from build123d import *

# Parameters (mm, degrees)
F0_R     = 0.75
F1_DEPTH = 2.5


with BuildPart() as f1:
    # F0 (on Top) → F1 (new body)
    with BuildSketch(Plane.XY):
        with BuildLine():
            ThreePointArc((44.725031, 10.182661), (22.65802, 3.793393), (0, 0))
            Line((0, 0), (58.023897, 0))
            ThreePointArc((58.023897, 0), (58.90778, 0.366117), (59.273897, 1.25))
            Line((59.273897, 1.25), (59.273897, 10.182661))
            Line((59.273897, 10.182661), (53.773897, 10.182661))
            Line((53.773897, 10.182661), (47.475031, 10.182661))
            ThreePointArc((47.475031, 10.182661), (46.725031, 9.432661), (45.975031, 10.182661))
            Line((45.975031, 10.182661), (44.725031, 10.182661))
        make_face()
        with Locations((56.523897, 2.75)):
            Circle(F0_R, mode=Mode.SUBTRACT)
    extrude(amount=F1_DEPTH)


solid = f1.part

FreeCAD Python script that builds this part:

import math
import FreeCAD as App
import Part
import Sketcher

V = App.Vector
Q = App.Units.Quantity

doc = App.newDocument("Part")
body = doc.addObject("PartDesign::Body", "Body")

sketch1 = body.newObject("Sketcher::SketchObject", "Sketch")
sketch1.AttachmentSupport = (doc.getObject("XY_Plane"), [""])
sketch1.MapMode = "FlatFace"
sketch1.addGeometry([
    Part.ArcOfCircle(Part.Circle(V(-21.3, 197.1, 0), V(0, 0, 1), 198.2), math.radians(-83.82), math.radians(-70.53)),
    Part.LineSegment(V(0, 0, 0), V(58, 0, 0)),
    Part.ArcOfCircle(Part.Circle(V(58, 1.3, 0), V(0, 0, 1), 1.3), math.radians(-90), math.radians(0)),
    Part.LineSegment(V(59.3, 1.2, 0), V(59.3, 10.2, 0)),
    Part.LineSegment(V(59.3, 10.2, 0), V(47.5, 10.2, 0)),
    Part.ArcOfCircle(Part.Circle(V(46.7, 10.2, 0), V(0, 0, 1), 0.8), math.radians(180), math.radians(360)),
    Part.LineSegment(V(46, 10.2, 0), V(44.7, 10.2, 0)),
    Part.Circle(V(56.5, 2.8, 0), V(0, 0, 1), 0.8),
], False)
sketch1.addConstraint([
    Sketcher.Constraint("Coincident", 0, 1, 1, 1),
    Sketcher.Constraint("Tangent", 1, 2, 2, 1),
    Sketcher.Constraint("Tangent", 2, 2, 3, 1),
    Sketcher.Constraint("Coincident", 3, 2, 4, 1),
    Sketcher.Constraint("Coincident", 4, 2, 5, 2),
    Sketcher.Constraint("Coincident", 5, 1, 6, 1),
    Sketcher.Constraint("Coincident", 6, 2, 0, 2),
    Sketcher.Constraint("Horizontal", 1),
    Sketcher.Constraint("Vertical", 3),
    Sketcher.Constraint("Horizontal", 4),
    Sketcher.Constraint("Horizontal", 6),
    Sketcher.Constraint("Coincident", 0, 1, -1, 1),
    Sketcher.Constraint("Equal", 5, 7),
    Sketcher.Constraint("Horizontal", 5, 3, 3, 2),
    Sketcher.Constraint("Horizontal", 4, 2, 5, 1),
    Sketcher.Constraint("Diameter", 7, Q("1.5 mm")),
    Sketcher.Constraint("Radius", 2, Q("1.250002 mm")),
    Sketcher.Constraint("DistanceX", 6, 2, 5, 3, Q("2 mm")),
    Sketcher.Constraint("DistanceX", 7, 3, 2, 3, Q("1.499998 mm")),
    Sketcher.Constraint("DistanceY", 2, 3, 7, 3, Q("1.499998 mm")),
    Sketcher.Constraint("Radius", 0, Q("198.240267 mm")),
    Sketcher.Constraint("DistanceY", 3, 1, 3, 2, Q("8.932661 mm")),
    Sketcher.Constraint("DistanceX", 1, 1, 1, 2, Q("58.023897 mm")),
    Sketcher.Constraint("DistanceX", 4, 2, 4, 1, Q("11.798866 mm")),
])
pad1 = body.newObject("PartDesign::Pad", "Pad")
pad1.Profile = sketch1
pad1.Length = 2.5

doc.recompute()
